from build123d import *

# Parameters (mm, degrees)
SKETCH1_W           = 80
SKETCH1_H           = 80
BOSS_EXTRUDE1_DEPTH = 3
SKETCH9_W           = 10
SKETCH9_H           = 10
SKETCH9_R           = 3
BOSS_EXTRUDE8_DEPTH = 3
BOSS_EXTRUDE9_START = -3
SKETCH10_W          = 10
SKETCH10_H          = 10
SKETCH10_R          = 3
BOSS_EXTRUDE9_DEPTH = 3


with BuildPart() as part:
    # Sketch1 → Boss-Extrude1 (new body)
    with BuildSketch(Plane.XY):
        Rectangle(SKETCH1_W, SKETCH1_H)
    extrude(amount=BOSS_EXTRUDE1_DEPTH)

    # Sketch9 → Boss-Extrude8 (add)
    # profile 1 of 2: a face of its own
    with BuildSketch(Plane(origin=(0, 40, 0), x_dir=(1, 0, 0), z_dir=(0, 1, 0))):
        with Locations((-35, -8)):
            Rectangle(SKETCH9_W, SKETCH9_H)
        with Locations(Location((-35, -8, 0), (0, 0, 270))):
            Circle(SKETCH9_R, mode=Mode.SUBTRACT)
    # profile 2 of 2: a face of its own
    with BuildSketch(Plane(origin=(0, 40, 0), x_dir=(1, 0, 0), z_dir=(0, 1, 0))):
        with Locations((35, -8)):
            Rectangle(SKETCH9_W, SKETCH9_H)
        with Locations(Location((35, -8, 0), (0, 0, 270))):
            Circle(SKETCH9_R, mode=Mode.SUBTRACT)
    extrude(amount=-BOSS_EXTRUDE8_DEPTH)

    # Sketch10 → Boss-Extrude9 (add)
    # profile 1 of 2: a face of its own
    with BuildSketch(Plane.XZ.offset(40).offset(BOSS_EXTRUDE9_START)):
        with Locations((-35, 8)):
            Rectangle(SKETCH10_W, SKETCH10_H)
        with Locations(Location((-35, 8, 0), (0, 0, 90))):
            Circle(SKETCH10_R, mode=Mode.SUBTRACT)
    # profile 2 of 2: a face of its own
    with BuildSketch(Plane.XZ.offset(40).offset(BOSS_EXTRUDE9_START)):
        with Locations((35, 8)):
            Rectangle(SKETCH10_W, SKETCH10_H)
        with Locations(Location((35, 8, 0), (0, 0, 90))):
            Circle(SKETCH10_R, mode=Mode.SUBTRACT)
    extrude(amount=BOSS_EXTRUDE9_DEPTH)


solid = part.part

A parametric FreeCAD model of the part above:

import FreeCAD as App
import Part
import Sketcher

V = App.Vector
Q = App.Units.Quantity

doc = App.newDocument("Part")
params = doc.addObject("Spreadsheet::Sheet", "Params")
for row, (alias, value) in enumerate([
    ("sketch1_width", "80 mm"),
    ("pad1_length", "3 mm"),
    ("sketch2_diameter", "6 mm"),
    ("sketch2_width", "10 mm"),
    ("pad2_length", "3 mm"),
    ("sketch3_diameter", "6 mm"),
    ("sketch3_width", "10 mm"),
    ("pad3_length", "3 mm"),
], start=1):
    params.set(f"A{row}", alias)
    params.set(f"B{row}", "=" + value)
    params.setAlias(f"B{row}", alias)

body = doc.addObject("PartDesign::Body", "Body")

# Sketch on XY plane
sketch1 = body.newObject("Sketcher::SketchObject", "Sketch")
sketch1.AttachmentSupport = (doc.getObject("XY_Plane"), [""])
sketch1.MapMode = "FlatFace"
sketch1.addGeometry([
    Part.LineSegment(V(-40, 40, 0), V(-40, -40, 0)),
    Part.LineSegment(V(-40, -40, 0), V(40, -40, 0)),
    Part.LineSegment(V(40, -40, 0), V(40, 40, 0)),
    Part.LineSegment(V(40, 40, 0), V(-40, 40, 0)),
], False)
sketch1.addConstraint([
    Sketcher.Constraint("Coincident", 0, 2, 1, 1),
    Sketcher.Constraint("Coincident", 1, 2, 2, 1),
    Sketcher.Constraint("Coincident", 2, 2, 3, 1),
    Sketcher.Constraint("Coincident", 3, 2, 0, 1),
    Sketcher.Constraint("Vertical", 0),
    Sketcher.Constraint("Horizontal", 1),
    Sketcher.Constraint("Vertical", 2),
    Sketcher.Constraint("Horizontal", 3),
    Sketcher.Constraint("Symmetric", 0, 2, 2, 2, -1, 1),
    Sketcher.Constraint("Equal", 3, 0),
    Sketcher.Constraint("DistanceX", 1, 1, 1, 2, Q("80 mm")),
])
sketch1.setExpression("Constraints[10]", "Params.sketch1_width")
pad1 = body.newObject("PartDesign::Pad", "Pad")
pad1.Profile = sketch1
pad1.setExpression("Length", "Params.pad1_length")

# Sketch on XZ plane
sketch2 = body.newObject("Sketcher::SketchObject", "Sketch001")
sketch2.AttachmentSupport = (doc.getObject("XZ_Plane"), [""])
sketch2.MapMode = "FlatFace"
sketch2.AttachmentOffset = App.Placement(V(0, 0, -40), App.Rotation())
sketch2.addGeometry([
    Part.LineSegment(V(-40, 3, 0), V(-40, 13, 0)),  # 0
    Part.LineSegment(V(-40, 13, 0), V(-30, 13, 0)),  # 1
    Part.LineSegment(V(-30, 13, 0), V(-30, 3, 0)),  # 2
    Part.LineSegment(V(-30, 3, 0), V(-40, 3, 0)),  # 3
    Part.Circle(V(-35, 8, 0), V(0, 0, 1), 3),  # 4
    Part.LineSegment(V(30, 3, 0), V(30, 13, 0)),  # 5
    Part.LineSegment(V(30, 13, 0), V(40, 13, 0)),  # 6
    Part.LineSegment(V(40, 13, 0), V(40, 3, 0)),  # 7
    Part.LineSegment(V(40, 3, 0), V(30, 3, 0)),  # 8
    Part.Circle(V(35, 8, 0), V(0, 0, 1), 3),  # 9
], False)
sketch2.addConstraint([
    Sketcher.Constraint("Coincident", 0, 2, 1, 1),
    Sketcher.Constraint("Coincident", 1, 2, 2, 1),
    Sketcher.Constraint("Coincident", 2, 2, 3, 1),
    Sketcher.Constraint("Coincident", 3, 2, 0, 1),
    Sketcher.Constraint("Coincident", 5, 2, 6, 1),
    Sketcher.Constraint("Coincident", 6, 2, 7, 1),
    Sketcher.Constraint("Coincident", 7, 2, 8, 1),
    Sketcher.Constraint("Coincident", 8, 2, 5, 1),
    Sketcher.Constraint("Vertical", 0),
    Sketcher.Constraint("Horizontal", 1),
    Sketcher.Constraint("Vertical", 2),
    Sketcher.Constraint("Horizontal", 3),
    Sketcher.Constraint("Vertical", 5),
    Sketcher.Constraint("Horizontal", 6),
    Sketcher.Constraint("Vertical", 7),
    Sketcher.Constraint("Horizontal", 8),
    Sketcher.Constraint("Equal", 4, 9),
    Sketcher.Constraint("Symmetric", 4, 3, 9, 3, -2),
    Sketcher.Constraint("Symmetric", 1, 2, 5, 2, -2),
    Sketcher.Constraint("Symmetric", 3, 2, 7, 2, -2),
    Sketcher.Constraint("Equal", 8, 0),
    Sketcher.Constraint("Diameter", 4, Q("6 mm")),
    Sketcher.Constraint("DistanceX", 1, 1, 1, 2, Q("10 mm")),
    Sketcher.Constraint("DistanceX", 4, 3, -1, 1, Q("35 mm")),
    Sketcher.Constraint("DistanceY", -1, 1, 4, 3, Q("8 mm")),
    Sketcher.Constraint("DistanceX", 0, 2, -1, 1, Q("40 mm")),
    Sketcher.Constraint("DistanceY", -1, 1, 0, 2, Q("13 mm")),
])
sketch2.setExpression("Constraints[21]", "Params.sketch2_diameter")
sketch2.setExpression("Constraints[22]", "Params.sketch2_width")
pad2 = body.newObject("PartDesign::Pad", "Pad001")
pad2.Profile = sketch2
pad2.setExpression("Length", "Params.pad2_length")

# Sketch on XZ plane
sketch3 = body.newObject("Sketcher::SketchObject", "Sketch002")
sketch3.AttachmentSupport = (doc.getObject("XZ_Plane"), [""])
sketch3.MapMode = "FlatFace"
sketch3.AttachmentOffset = App.Placement(V(0, 0, 37), App.Rotation())
sketch3.addGeometry([
    Part.LineSegment(V(-40, 13, 0), V(-40, 3, 0)),  # 0
    Part.LineSegment(V(-40, 3, 0), V(-30, 3, 0)),  # 1
    Part.LineSegment(V(-30, 3, 0), V(-30, 13, 0)),  # 2
    Part.LineSegment(V(-30, 13, 0), V(-40, 13, 0)),  # 3
    Part.Circle(V(-35, 8, 0), V(0, 0, 1), 3),  # 4
    Part.LineSegment(V(30, 13, 0), V(30, 3, 0)),  # 5
    Part.LineSegment(V(30, 3, 0), V(40, 3, 0)),  # 6
    Part.LineSegment(V(40, 3, 0), V(40, 13, 0)),  # 7
    Part.LineSegment(V(40, 13, 0), V(30, 13, 0)),  # 8
    Part.Circle(V(35, 8, 0), V(0, 0, 1), 3),  # 9
], False)
sketch3.addConstraint([
    Sketcher.Constraint("Coincident", 0, 2, 1, 1),
    Sketcher.Constraint("Coincident", 1, 2, 2, 1),
    Sketcher.Constraint("Coincident", 2, 2, 3, 1),
    Sketcher.Constraint("Coincident", 3, 2, 0, 1),
    Sketcher.Constraint("Coincident", 5, 2, 6, 1),
    Sketcher.Constraint("Coincident", 6, 2, 7, 1),
    Sketcher.Constraint("Coincident", 7, 2, 8, 1),
    Sketcher.Constraint("Coincident", 8, 2, 5, 1),
    Sketcher.Constraint("Vertical", 0),
    Sketcher.Constraint("Horizontal", 1),
    Sketcher.Constraint("Vertical", 2),
    Sketcher.Constraint("Horizontal", 3),
    Sketcher.Constraint("Vertical", 5),
    Sketcher.Constraint("Horizontal", 6),
    Sketcher.Constraint("Vertical", 7),
    Sketcher.Constraint("Horizontal", 8),
    Sketcher.Constraint("Equal", 4, 9),
    Sketcher.Constraint("Symmetric", 4, 3, 9, 3, -2),
    Sketcher.Constraint("Symmetric", 1, 2, 5, 2, -2),
    Sketcher.Constraint("Symmetric", 3, 2, 7, 2, -2),
    Sketcher.Constraint("Equal", 8, 0),
    Sketcher.Constraint("Diameter", 4, Q("6 mm")),
    Sketcher.Constraint("DistanceX", 1, 1, 1, 2, Q("10 mm")),
    Sketcher.Constraint("DistanceX", 4, 3, -1, 1, Q("35 mm")),
    Sketcher.Constraint("DistanceY", -1, 1, 4, 3, Q("8 mm")),
    Sketcher.Constraint("DistanceX", 0, 2, -1, 1, Q("40 mm")),
    Sketcher.Constraint("DistanceY", -1, 1, 0, 2, Q("3 mm")),
])
sketch3.setExpression("Constraints[21]", "Params.sketch3_diameter")
sketch3.setExpression("Constraints[22]", "Params.sketch3_width")
pad3 = body.newObject("PartDesign::Pad", "Pad002")
pad3.Profile = sketch3
pad3.setExpression("Length", "Params.pad3_length")

doc.recompute()
